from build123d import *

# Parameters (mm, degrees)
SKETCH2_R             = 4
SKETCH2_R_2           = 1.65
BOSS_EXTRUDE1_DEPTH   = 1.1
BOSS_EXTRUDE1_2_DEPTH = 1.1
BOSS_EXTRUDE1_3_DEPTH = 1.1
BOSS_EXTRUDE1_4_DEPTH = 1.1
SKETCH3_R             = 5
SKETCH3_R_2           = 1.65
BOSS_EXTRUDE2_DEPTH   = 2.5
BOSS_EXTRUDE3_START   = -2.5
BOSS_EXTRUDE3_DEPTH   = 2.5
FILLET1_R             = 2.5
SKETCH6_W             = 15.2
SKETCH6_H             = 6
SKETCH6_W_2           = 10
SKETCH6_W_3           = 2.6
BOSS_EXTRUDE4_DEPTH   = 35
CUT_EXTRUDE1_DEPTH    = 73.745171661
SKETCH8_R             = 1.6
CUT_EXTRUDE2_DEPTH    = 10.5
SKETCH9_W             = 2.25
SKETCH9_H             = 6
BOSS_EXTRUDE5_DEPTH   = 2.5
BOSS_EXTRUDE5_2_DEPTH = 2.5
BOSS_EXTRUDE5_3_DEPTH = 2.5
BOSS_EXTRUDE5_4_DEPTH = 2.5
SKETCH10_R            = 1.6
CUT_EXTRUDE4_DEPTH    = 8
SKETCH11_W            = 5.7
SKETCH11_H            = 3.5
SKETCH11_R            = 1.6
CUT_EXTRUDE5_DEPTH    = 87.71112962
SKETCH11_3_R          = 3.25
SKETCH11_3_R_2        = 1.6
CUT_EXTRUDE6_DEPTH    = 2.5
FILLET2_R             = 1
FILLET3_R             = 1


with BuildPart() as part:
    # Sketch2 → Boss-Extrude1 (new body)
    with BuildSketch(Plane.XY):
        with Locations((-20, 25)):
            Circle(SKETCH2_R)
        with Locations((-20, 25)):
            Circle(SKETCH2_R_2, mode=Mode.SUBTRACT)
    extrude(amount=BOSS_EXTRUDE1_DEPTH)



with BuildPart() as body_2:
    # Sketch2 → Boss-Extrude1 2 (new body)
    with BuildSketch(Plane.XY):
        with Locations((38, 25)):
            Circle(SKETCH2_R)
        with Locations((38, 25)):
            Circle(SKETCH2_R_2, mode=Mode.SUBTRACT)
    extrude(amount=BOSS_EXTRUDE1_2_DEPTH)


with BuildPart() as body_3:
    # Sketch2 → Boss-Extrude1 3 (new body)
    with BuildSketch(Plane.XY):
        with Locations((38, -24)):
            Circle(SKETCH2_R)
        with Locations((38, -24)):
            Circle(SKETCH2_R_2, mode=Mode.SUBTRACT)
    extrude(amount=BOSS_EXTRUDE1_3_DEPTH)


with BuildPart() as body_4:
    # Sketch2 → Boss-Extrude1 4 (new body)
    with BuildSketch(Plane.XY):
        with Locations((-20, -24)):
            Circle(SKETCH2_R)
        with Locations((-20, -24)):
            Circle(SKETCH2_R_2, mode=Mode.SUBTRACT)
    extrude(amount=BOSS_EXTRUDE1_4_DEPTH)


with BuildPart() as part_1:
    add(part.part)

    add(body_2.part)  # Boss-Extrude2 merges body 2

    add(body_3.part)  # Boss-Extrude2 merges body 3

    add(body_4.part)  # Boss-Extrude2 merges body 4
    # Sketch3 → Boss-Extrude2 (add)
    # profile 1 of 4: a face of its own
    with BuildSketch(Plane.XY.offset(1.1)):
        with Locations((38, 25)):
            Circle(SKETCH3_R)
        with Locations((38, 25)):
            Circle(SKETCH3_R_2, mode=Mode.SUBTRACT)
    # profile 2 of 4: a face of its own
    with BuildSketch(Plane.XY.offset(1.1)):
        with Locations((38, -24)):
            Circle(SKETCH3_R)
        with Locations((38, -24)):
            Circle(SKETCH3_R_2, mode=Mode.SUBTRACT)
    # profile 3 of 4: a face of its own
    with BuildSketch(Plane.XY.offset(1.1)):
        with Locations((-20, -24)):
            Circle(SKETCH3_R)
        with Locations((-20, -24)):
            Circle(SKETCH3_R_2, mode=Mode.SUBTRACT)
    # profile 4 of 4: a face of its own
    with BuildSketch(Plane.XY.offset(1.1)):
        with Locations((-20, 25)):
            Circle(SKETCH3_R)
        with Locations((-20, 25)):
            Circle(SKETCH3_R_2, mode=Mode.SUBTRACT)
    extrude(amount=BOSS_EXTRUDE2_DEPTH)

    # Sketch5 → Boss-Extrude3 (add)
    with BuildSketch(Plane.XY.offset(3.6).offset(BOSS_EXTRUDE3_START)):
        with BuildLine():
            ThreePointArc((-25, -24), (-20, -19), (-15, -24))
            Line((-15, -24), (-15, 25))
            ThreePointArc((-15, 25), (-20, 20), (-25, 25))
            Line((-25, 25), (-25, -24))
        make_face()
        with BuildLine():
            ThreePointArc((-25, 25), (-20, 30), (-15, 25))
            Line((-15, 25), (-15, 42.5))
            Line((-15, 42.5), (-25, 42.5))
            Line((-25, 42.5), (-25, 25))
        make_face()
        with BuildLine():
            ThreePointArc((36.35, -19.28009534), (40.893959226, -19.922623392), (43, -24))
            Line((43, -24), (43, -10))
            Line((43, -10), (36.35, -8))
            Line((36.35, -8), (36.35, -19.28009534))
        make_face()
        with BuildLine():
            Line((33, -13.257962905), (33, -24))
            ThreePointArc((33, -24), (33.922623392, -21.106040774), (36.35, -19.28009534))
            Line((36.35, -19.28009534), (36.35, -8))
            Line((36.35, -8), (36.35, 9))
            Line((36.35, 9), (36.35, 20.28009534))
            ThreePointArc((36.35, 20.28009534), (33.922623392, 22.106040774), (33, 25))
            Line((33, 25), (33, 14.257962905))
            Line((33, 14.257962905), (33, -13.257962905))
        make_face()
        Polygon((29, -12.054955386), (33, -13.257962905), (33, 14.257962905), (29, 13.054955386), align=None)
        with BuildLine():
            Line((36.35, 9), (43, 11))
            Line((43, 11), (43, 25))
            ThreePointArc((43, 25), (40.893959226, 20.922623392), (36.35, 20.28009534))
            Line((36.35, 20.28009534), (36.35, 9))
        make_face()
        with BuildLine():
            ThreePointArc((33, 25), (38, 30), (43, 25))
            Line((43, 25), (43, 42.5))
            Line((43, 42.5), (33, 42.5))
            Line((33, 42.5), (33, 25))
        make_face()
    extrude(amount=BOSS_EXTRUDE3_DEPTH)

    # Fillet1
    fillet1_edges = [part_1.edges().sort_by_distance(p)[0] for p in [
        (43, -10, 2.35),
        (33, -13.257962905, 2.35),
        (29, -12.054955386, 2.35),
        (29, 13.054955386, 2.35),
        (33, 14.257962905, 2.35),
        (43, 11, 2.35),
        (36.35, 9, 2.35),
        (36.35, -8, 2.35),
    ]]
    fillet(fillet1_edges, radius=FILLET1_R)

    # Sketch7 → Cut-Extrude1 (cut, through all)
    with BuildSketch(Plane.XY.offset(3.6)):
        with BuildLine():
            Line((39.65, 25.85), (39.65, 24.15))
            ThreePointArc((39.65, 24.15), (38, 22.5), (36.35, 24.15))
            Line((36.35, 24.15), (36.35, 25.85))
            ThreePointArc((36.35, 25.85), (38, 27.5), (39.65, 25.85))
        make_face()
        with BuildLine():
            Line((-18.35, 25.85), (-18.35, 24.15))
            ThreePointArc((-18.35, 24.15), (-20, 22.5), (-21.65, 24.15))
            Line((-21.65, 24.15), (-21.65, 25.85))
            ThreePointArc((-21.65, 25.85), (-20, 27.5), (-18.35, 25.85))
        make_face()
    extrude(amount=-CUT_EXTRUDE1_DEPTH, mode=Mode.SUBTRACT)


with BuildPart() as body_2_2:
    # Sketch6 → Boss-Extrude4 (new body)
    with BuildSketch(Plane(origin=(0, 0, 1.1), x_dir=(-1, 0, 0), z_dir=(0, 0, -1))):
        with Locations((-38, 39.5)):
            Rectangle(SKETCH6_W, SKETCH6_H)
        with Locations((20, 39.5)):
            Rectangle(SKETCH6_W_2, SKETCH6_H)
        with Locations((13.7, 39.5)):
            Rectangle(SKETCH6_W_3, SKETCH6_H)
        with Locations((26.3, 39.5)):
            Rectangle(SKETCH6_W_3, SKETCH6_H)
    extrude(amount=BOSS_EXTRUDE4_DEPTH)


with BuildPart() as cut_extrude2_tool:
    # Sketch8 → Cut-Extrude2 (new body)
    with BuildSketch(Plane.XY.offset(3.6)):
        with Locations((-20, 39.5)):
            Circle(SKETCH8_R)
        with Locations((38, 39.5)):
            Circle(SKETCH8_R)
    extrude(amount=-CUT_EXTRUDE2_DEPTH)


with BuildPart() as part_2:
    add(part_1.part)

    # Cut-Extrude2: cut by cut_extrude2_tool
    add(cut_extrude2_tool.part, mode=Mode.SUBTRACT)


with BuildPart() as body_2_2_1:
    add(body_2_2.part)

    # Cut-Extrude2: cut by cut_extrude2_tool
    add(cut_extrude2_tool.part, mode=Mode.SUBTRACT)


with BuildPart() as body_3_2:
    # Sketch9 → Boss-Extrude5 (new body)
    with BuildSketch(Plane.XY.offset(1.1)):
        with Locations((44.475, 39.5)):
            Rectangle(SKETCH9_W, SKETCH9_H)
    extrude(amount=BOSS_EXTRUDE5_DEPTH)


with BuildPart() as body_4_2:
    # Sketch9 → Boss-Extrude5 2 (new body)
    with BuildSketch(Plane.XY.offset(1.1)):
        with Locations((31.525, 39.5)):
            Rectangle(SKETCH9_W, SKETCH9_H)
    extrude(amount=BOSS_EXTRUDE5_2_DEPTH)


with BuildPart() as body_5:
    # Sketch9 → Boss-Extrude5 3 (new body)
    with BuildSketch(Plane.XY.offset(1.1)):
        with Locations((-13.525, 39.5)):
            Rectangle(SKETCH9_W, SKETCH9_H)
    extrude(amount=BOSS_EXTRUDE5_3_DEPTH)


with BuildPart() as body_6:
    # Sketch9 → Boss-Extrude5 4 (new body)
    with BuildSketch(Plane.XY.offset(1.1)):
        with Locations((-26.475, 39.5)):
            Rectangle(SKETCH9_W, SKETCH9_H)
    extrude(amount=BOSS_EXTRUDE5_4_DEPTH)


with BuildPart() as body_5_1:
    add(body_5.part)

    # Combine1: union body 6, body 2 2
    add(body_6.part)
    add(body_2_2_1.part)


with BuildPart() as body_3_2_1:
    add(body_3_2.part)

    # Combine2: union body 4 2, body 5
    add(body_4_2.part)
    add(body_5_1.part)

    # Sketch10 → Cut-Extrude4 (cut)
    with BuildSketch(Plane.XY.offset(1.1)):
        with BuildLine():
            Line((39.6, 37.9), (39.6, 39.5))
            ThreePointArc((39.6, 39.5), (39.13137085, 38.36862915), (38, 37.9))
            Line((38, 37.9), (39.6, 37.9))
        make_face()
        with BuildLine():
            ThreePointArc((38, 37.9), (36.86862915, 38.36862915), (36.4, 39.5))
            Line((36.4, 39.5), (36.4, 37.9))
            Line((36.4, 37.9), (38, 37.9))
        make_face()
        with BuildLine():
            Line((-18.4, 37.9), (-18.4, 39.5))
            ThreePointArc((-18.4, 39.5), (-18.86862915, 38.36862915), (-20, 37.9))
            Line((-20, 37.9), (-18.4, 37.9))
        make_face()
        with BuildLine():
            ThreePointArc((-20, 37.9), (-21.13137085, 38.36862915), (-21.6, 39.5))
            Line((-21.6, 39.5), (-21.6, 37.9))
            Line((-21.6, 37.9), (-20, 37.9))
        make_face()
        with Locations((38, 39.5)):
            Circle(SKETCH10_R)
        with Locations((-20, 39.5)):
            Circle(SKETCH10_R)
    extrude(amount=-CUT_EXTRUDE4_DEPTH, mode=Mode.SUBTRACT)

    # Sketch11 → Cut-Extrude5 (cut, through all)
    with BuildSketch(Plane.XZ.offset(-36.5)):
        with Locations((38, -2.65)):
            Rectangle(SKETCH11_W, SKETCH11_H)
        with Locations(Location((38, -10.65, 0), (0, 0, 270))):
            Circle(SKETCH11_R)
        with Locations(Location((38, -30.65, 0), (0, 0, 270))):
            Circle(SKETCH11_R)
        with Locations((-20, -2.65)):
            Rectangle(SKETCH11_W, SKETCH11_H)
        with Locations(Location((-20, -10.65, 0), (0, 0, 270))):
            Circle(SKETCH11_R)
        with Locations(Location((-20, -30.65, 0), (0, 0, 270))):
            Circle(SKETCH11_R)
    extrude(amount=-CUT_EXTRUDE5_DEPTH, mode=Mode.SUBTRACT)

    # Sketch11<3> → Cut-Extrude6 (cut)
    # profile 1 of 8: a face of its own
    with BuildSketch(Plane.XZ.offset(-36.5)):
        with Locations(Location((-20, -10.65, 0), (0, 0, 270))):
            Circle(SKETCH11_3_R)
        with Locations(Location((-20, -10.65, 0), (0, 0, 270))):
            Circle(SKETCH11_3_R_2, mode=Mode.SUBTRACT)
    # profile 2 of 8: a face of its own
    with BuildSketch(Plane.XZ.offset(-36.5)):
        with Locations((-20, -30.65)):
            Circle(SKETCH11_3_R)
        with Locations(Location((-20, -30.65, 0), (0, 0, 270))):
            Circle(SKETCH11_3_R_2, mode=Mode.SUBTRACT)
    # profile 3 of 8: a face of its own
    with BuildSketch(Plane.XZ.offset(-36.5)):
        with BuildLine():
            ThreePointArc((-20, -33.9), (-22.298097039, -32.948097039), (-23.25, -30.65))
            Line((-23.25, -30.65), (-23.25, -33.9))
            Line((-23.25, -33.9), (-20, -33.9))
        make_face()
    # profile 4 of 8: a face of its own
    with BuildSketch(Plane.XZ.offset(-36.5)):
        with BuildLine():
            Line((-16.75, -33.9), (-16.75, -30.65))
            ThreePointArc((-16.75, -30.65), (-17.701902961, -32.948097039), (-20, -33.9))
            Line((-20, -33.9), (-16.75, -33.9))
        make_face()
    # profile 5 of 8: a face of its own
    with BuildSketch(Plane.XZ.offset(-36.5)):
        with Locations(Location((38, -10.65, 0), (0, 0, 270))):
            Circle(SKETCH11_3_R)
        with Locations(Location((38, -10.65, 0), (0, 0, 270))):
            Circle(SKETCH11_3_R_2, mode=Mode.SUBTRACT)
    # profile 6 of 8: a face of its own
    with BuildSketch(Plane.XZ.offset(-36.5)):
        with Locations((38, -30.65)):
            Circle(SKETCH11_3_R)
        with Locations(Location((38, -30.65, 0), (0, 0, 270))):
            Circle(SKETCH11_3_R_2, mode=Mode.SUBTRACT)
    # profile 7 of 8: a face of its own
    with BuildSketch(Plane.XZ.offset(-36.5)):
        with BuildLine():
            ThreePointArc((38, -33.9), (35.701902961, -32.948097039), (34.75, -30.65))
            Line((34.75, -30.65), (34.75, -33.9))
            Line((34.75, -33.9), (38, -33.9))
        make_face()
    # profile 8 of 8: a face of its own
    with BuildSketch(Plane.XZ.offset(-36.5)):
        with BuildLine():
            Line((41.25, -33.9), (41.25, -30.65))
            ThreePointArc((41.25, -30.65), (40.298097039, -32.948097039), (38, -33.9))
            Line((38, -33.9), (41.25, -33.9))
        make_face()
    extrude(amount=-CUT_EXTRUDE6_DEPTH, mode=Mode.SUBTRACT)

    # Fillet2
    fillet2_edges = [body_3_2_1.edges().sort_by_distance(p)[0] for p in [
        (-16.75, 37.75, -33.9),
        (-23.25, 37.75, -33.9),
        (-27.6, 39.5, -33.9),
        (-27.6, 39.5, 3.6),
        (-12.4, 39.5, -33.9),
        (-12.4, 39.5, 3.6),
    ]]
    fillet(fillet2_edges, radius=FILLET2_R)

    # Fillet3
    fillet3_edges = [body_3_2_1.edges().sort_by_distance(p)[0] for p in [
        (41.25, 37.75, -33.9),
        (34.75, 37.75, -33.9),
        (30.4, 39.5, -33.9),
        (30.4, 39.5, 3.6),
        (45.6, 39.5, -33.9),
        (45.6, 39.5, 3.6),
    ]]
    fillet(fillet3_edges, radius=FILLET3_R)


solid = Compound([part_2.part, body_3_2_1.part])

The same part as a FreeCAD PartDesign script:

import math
import FreeCAD as App
import Part
import Sketcher
from FreeCAD import Vector


def edges_at(feature, points):
    """Names of the edges that pass closest to the given points."""
    edges = feature.Shape.Edges
    near = lambda p: min(range(len(edges)), key=lambda i: edges[i].distToShape(Part.Vertex(*p))[0])
    return sorted({f"Edge{near(p) + 1}" for p in points})


def add_polygon(sketch, points):
    """Adds a closed chain of lines whose ends are joined by coincident constraints."""
    first, n = sketch.GeometryCount, len(points)
    for a, b in zip(points, points[1:] + points[:1]):
        sketch.addGeometry(Part.LineSegment(App.Vector(*a, 0), App.Vector(*b, 0)), False)
    for i in range(n):
        sketch.addConstraint(Sketcher.Constraint("Coincident", first + i, 2, first + (i + 1) % n, 1))

doc = App.newDocument("Part")
params = doc.addObject("Spreadsheet::Sheet", "Params")
for row, (alias, value) in enumerate([
    ("sketch1_diameter", "8 mm"),
    ("sketch1_diameter2", "3.3 mm"),
    ("pad1_length", "1.1 mm"),
    ("sketch2_diameter", "8 mm"),
    ("sketch2_diameter2", "3.3 mm"),
    ("pad2_length", "1.1 mm"),
    ("sketch3_diameter", "8 mm"),
    ("sketch3_diameter2", "3.3 mm"),
    ("pad3_length", "1.1 mm"),
    ("sketch4_diameter", "8 mm"),
    ("sketch4_diameter2", "3.3 mm"),
    ("pad4_length", "1.1 mm"),
    ("sketch5_diameter", "10 mm"),
    ("sketch5_diameter2", "3.3 mm"),
    ("pad5_length", "2.5 mm"),
    ("sketch6_radius", "5 mm"),
    ("sketch6_height", "49 mm"),
    ("sketch6_height2", "14 mm"),
    ("sketch6_height3", "17 mm"),
    ("sketch6_height4", "17.5 mm"),
    ("pad6_length", "2.5 mm"),
    ("fillet_radius", "2.5 mm"),
    ("sketch7_radius", "1.65 mm"),
    ("sketch7_height", "1.7 mm"),
    ("sketch8_height", "6 mm"),
    ("sketch8_width", "15.2 mm"),
    ("pad7_length", "35 mm"),
    ("sketch9_diameter", "3.2 mm"),
    ("pad8_length", "10.5 mm"),
    ("sketch10_height", "6 mm"),
    ("sketch10_width", "2.25 mm"),
    ("pad9_length", "2.5 mm"),
    ("sketch11_height", "6 mm"),
    ("sketch11_width", "2.25 mm"),
    ("pad10_length", "2.5 mm"),
    ("sketch12_height", "6 mm"),
    ("sketch12_width", "2.25 mm"),
    ("pad11_length", "2.5 mm"),
    ("sketch13_height", "6 mm"),
    ("sketch13_width", "2.25 mm"),
    ("pad12_length", "2.5 mm"),
    ("sketch14_radius", "1.6 mm"),
    ("sketch14_height", "1.6 mm"),
    ("pocket2_length", "8 mm"),
    ("sketch15_diameter", "3.2 mm"),
    ("sketch15_width", "5.7 mm"),
    ("sketch15_height", "3.5 mm"),
    ("sketch16_diameter", "6.5 mm"),
    ("sketch16_diameter2", "3.2 mm"),
    ("sketch16_height", "3.25 mm"),
    ("pocket4_length", "2.5 mm"),
    ("fillet2_radius", "1 mm"),
    ("fillet3_radius", "1 mm"),
], start=1):
    params.set(f"A{row}", alias)
    params.set(f"B{row}", "=" + value)
    params.setAlias(f"B{row}", alias)

body = doc.addObject("PartDesign::Body", "Body")

sketch1 = body.newObject("Sketcher::SketchObject", "Sketch")
sketch1.AttachmentSupport = (doc.getObject("XY_Plane"), [""])
sketch1.MapMode = "FlatFace"
sketch1.addGeometry([
    Part.Circle(Vector(-20, 25, 0), Vector(0, 0, 1), 4),
    Part.Circle(Vector(-20, 25, 0), Vector(0, 0, 1), 1.65),
], False)
sketch1.addConstraint([
    Sketcher.Constraint("Coincident", 1, 3, 0, 3),
    Sketcher.Constraint("Diameter", 0, 8.0),
    Sketcher.Constraint("Diameter", 1, 3.3),
    Sketcher.Constraint("DistanceX", 0, 3, -1, 1, 20.0),
    Sketcher.Constraint("DistanceY", -1, 1, 0, 3, 25.0),
])
sketch1.setExpression("Constraints[1]", "Params.sketch1_diameter")
sketch1.setExpression("Constraints[2]", "Params.sketch1_diameter2")
pad1 = body.newObject("PartDesign::Pad", "Pad")
pad1.Profile = sketch1
pad1.setExpression("Length", "Params.pad1_length")
body2 = doc.addObject("PartDesign::Body", "Body001")

sketch2 = body2.newObject("Sketcher::SketchObject", "Sketch001")
sketch2.AttachmentSupport = (doc.getObject("XY_Plane001"), [""])
sketch2.MapMode = "FlatFace"
sketch2.addGeometry([
    Part.Circle(Vector(38, 25, 0), Vector(0, 0, 1), 4),
    Part.Circle(Vector(38, 25, 0), Vector(0, 0, 1), 1.65),
], False)
sketch2.addConstraint([
    Sketcher.Constraint("Coincident", 1, 3, 0, 3),
    Sketcher.Constraint("Diameter", 0, 8.0),
    Sketcher.Constraint("Diameter", 1, 3.3),
    Sketcher.Constraint("DistanceX", -1, 1, 0, 3, 38.0),
    Sketcher.Constraint("DistanceY", -1, 1, 0, 3, 25.0),
])
sketch2.setExpression("Constraints[1]", "Params.sketch2_diameter")
sketch2.setExpression("Constraints[2]", "Params.sketch2_diameter2")
pad2 = body2.newObject("PartDesign::Pad", "Pad001")
pad2.Profile = sketch2
pad2.setExpression("Length", "Params.pad2_length")
body3 = doc.addObject("PartDesign::Body", "Body002")

sketch3 = body3.newObject("Sketcher::SketchObject", "Sketch002")
sketch3.AttachmentSupport = (doc.getObject("XY_Plane002"), [""])
sketch3.MapMode = "FlatFace"
sketch3.addGeometry([
    Part.Circle(Vector(38, -24, 0), Vector(0, 0, 1), 4),
    Part.Circle(Vector(38, -24, 0), Vector(0, 0, 1), 1.65),
], False)
sketch3.addConstraint([
    Sketcher.Constraint("Coincident", 1, 3, 0, 3),
    Sketcher.Constraint("Diameter", 0, 8.0),
    Sketcher.Constraint("Diameter", 1, 3.3),
    Sketcher.Constraint("DistanceX", -1, 1, 0, 3, 38.0),
    Sketcher.Constraint("DistanceY", 0, 3, -1, 1, 24.0),
])
sketch3.setExpression("Constraints[1]", "Params.sketch3_diameter")
sketch3.setExpression("Constraints[2]", "Params.sketch3_diameter2")
pad3 = body3.newObject("PartDesign::Pad", "Pad002")
pad3.Profile = sketch3
pad3.setExpression("Length", "Params.pad3_length")
body4 = doc.addObject("PartDesign::Body", "Body003")

sketch4 = body4.newObject("Sketcher::SketchObject", "Sketch003")
sketch4.AttachmentSupport = (doc.getObject("XY_Plane003"), [""])
sketch4.MapMode = "FlatFace"
sketch4.addGeometry([
    Part.Circle(Vector(-20, -24, 0), Vector(0, 0, 1), 4),
    Part.Circle(Vector(-20, -24, 0), Vector(0, 0, 1), 1.65),
], False)
sketch4.addConstraint([
    Sketcher.Constraint("Coincident", 1, 3, 0, 3),
    Sketcher.Constraint("Diameter", 0, 8.0),
    Sketcher.Constraint("Diameter", 1, 3.3),
    Sketcher.Constraint("DistanceX", 0, 3, -1, 1, 20.0),
    Sketcher.Constraint("DistanceY", 0, 3, -1, 1, 24.0),
])
sketch4.setExpression("Constraints[1]", "Params.sketch4_diameter")
sketch4.setExpression("Constraints[2]", "Params.sketch4_diameter2")
pad4 = body4.newObject("PartDesign::Pad", "Pad003")
pad4.Profile = sketch4
pad4.setExpression("Length", "Params.pad4_length")
body.AllowCompound = True
doc.recompute()

boolean = body.newObject("PartDesign::Boolean", "Boolean")
boolean.Type = "Fuse"
boolean.addObjects([body2])
doc.recompute()

boolean2 = body.newObject("PartDesign::Boolean", "Boolean001")
boolean2.Type = "Fuse"
boolean2.addObjects([body3])
doc.recompute()

boolean3 = body.newObject("PartDesign::Boolean", "Boolean002")
boolean3.Type = "Fuse"
boolean3.addObjects([body4])

sketch5 = body.newObject("Sketcher::SketchObject", "Sketch004")
sketch5.AttachmentSupport = (doc.getObject("XY_Plane"), [""])
sketch5.MapMode = "FlatFace"
sketch5.AttachmentOffset = App.Placement(Vector(0, 0, 1.1), App.Rotation())
sketch5.addGeometry([
    Part.Circle(Vector(38, 25, 0), Vector(0, 0, 1), 5),
    Part.Circle(Vector(38, 25, 0), Vector(0, 0, 1), 1.65),
    Part.Circle(Vector(38, -24, 0), Vector(0, 0, 1), 5),
    Part.Circle(Vector(38, -24, 0), Vector(0, 0, 1), 1.65),
    Part.Circle(Vector(-20, -24, 0), Vector(0, 0, 1), 5),
    Part.Circle(Vector(-20, -24, 0), Vector(0, 0, 1), 1.65),
    Part.Circle(Vector(-20, 25, 0), Vector(0, 0, 1), 5),
    Part.Circle(Vector(-20, 25, 0), Vector(0, 0, 1), 1.65),
], False)
sketch5.addConstraint([
    Sketcher.Constraint("Coincident", 1, 3, 0, 3),
    Sketcher.Constraint("Coincident", 3, 3, 2, 3),
    Sketcher.Constraint("Coincident", 5, 3, 4, 3),
    Sketcher.Constraint("Coincident", 7, 3, 6, 3),
    Sketcher.Constraint("Equal", 0, 2),
    Sketcher.Constraint("Equal", 1, 3),
    Sketcher.Constraint("Equal", 2, 4),
    Sketcher.Constraint("Equal", 3, 5),
    Sketcher.Constraint("Equal", 4, 6),
    Sketcher.Constraint("Equal", 5, 7),
    Sketcher.Constraint("Horizontal", 3, 3, 4, 3),
    Sketcher.Constraint("Horizontal", 1, 3, 6, 3),
    Sketcher.Constraint("Vertical", 1, 3, 2, 3),
    Sketcher.Constraint("Vertical", 5, 3, 6, 3),
    Sketcher.Constraint("Diameter", 0, 10.0),
    Sketcher.Constraint("Diameter", 1, 3.3),
    Sketcher.Constraint("DistanceX", -1, 1, 0, 3, 38.0),
    Sketcher.Constraint("DistanceY", -1, 1, 0, 3, 25.0),
    Sketcher.Constraint("DistanceY", 2, 3, -1, 1, 24.0),
    Sketcher.Constraint("DistanceX", 4, 3, -1, 1, 20.0),
])
sketch5.setExpression("Constraints[14]", "Params.sketch5_diameter")
sketch5.setExpression("Constraints[15]", "Params.sketch5_diameter2")
pad5 = body.newObject("PartDesign::Pad", "Pad004")
pad5.Profile = sketch5
pad5.setExpression("Length", "Params.pad5_length")

sketch6 = body.newObject("Sketcher::SketchObject", "Sketch005")
sketch6.AttachmentSupport = (doc.getObject("XY_Plane"), [""])
sketch6.MapMode = "FlatFace"
sketch6.AttachmentOffset = App.Placement(Vector(0, 0, 1.1), App.Rotation())
sketch6.addGeometry([
    Part.ArcOfCircle(Part.Circle(Vector(-20, -24, 0), Vector(0, 0, 1), 5), math.radians(0), math.radians(180)),
    Part.LineSegment(Vector(-15, -24, 0), Vector(-15, 25, 0)),
    Part.ArcOfCircle(Part.Circle(Vector(-20, 25, 0), Vector(0, 0, 1), 5), math.radians(180), math.radians(360)),
    Part.LineSegment(Vector(-25, 25, 0), Vector(-25, -24, 0)),
    Part.ArcOfCircle(Part.Circle(Vector(-20, 25, 0), Vector(0, 0, 1), 5), math.radians(0), math.radians(180)),
    Part.LineSegment(Vector(-15, 25, 0), Vector(-15, 42.5, 0)),
    Part.LineSegment(Vector(-15, 42.5, 0), Vector(-25, 42.5, 0)),
    Part.LineSegment(Vector(-25, 42.5, 0), Vector(-25, 25, 0)),
    Part.ArcOfCircle(Part.Circle(Vector(38, -24, 0), Vector(0, 0, 1), 5), math.radians(0), math.radians(109.268776)),
    Part.LineSegment(Vector(43, -24, 0), Vector(43, -10, 0)),
    Part.LineSegment(Vector(43, -10, 0), Vector(36.35, -8, 0)),
    Part.LineSegment(Vector(36.35, -8, 0), Vector(36.35, 9, 0)),
    Part.LineSegment(Vector(36.35, 9, 0), Vector(43, 11, 0)),
    Part.LineSegment(Vector(43, 11, 0), Vector(43, 25, 0)),
    Part.ArcOfCircle(Part.Circle(Vector(38, 25, 0), Vector(0, 0, 1), 5), math.radians(-109.268776), math.radians(0)),
    Part.ArcOfCircle(Part.Circle(Vector(38, 25, 0), Vector(0, 0, 1), 5), math.radians(180), math.radians(250.731225)),
    Part.LineSegment(Vector(33, 25, 0), Vector(33, 14.257963, 0)),
    Part.LineSegment(Vector(33, 14.257963, 0), Vector(29, 13.054955, 0)),
    Part.LineSegment(Vector(29, 13.054955, 0), Vector(29, -12.054955, 0)),
    Part.LineSegment(Vector(29, -12.054955, 0), Vector(33, -13.257963, 0)),
    Part.LineSegment(Vector(33, -13.257963, 0), Vector(33, -24, 0)),
    Part.ArcOfCircle(Part.Circle(Vector(38, -24, 0), Vector(0, 0, 1), 5), math.radians(109.268775), math.radians(180)),
    Part.ArcOfCircle(Part.Circle(Vector(38, 25, 0), Vector(0, 0, 1), 5), math.radians(0), math.radians(180)),
    Part.LineSegment(Vector(43, 25, 0), Vector(43, 42.5, 0)),
    Part.LineSegment(Vector(43, 42.5, 0), Vector(33, 42.5, 0)),
    Part.LineSegment(Vector(33, 42.5, 0), Vector(33, 25, 0)),
], False)
sketch6.addConstraint([
    Sketcher.Constraint("Tangent", 0, 1, 1, 1),
    Sketcher.Constraint("Tangent", 1, 2, 2, 2),
    Sketcher.Constraint("Tangent", 2, 1, 3, 1),
    Sketcher.Constraint("Tangent", 3, 2, 0, 2),
    Sketcher.Constraint("Tangent", 4, 1, 5, 1),
    Sketcher.Constraint("Coincident", 5, 2, 6, 1),
    Sketcher.Constraint("Coincident", 6, 2, 7, 1),
    Sketcher.Constraint("Tangent", 7, 2, 4, 2),
    Sketcher.Constraint("Tangent", 8, 1, 9, 1),
    Sketcher.Constraint("Coincident", 9, 2, 10, 1),
    Sketcher.Constraint("Coincident", 10, 2, 11, 1),
    Sketcher.Constraint("Coincident", 11, 2, 12, 1),
    Sketcher.Constraint("Coincident", 12, 2, 13, 1),
    Sketcher.Constraint("Tangent", 13, 2, 14, 2),
    Sketcher.Constraint("Tangent", 14, 1, 15, 2),
    Sketcher.Constraint("Tangent", 15, 1, 16, 1),
    Sketcher.Constraint("Coincident", 16, 2, 17, 1),
    Sketcher.Constraint("Coincident", 17, 2, 18, 1),
    Sketcher.Constraint("Coincident", 18, 2, 19, 1),
    Sketcher.Constraint("Coincident", 19, 2, 20, 1),
    Sketcher.Constraint("Tangent", 20, 2, 21, 2),
    Sketcher.Constraint("Tangent", 21, 1, 8, 2),
    Sketcher.Constraint("Tangent", 22, 1, 23, 1),
    Sketcher.Constraint("Coincident", 23, 2, 24, 1),
    Sketcher.Constraint("Coincident", 24, 2, 25, 1),
    Sketcher.Constraint("Tangent", 25, 2, 22, 2),
    Sketcher.Constraint("Vertical", 1),
    Sketcher.Constraint("Vertical", 3),
    Sketcher.Constraint("Vertical", 5),
    Sketcher.Constraint("Horizontal", 6),
    Sketcher.Constraint("Vertical", 7),
    Sketcher.Constraint("Vertical", 9),
    Sketcher.Constraint("Vertical", 11),
    Sketcher.Constraint("Vertical", 13),
    Sketcher.Constraint("Vertical", 16),
    Sketcher.Constraint("Vertical", 18),
    Sketcher.Constraint("Vertical", 20),
    Sketcher.Constraint("Vertical", 23),
    Sketcher.Constraint("Horizontal", 24),
    Sketcher.Constraint("Vertical", 25),
    Sketcher.Constraint("Coincident", 4, 3, 2, 3),
    Sketcher.Constraint("Coincident", 22, 3, 14, 3),
    Sketcher.Constraint("Coincident", 25, 2, 15, 1),
    Sketcher.Constraint("Equal", 2, 4),
    Sketcher.Constraint("Equal", 4, 8),
    Sketcher.Constraint("Equal", 8, 14),
    Sketcher.Constraint("Equal", 15, 21),
    Sketcher.Constraint("Parallel", 12, 17),
    Sketcher.Constraint("Parallel", 10, 19),
    Sketcher.Constraint("Horizontal", 0, 3, 8, 3),
    Sketcher.Constraint("Horizontal", 4, 3, 14, 3),
    Sketcher.Constraint("Horizontal", 6, 2, 23, 2),
    Sketcher.Constraint("Vertical", 8, 3, 14, 3),
    Sketcher.Constraint("Vertical", 11, 2, 14, 1),
    Sketcher.Constraint("Vertical", 14, 1, 21, 1),
    Sketcher.Constraint("Equal", 9, 13),
    Sketcher.Constraint("Equal", 16, 20),
    Sketcher.Constraint("Equal", 10, 12),
    Sketcher.Constraint("Radius", 0, 5.0),
    Sketcher.Constraint("DistanceY", 1, 1, 1, 2, 49.0),
    Sketcher.Constraint("DistanceY", 9, 1, 9, 2, 14.0),
    Sketcher.Constraint("DistanceY", 11, 1, 11, 2, 17.0),
    Sketcher.Constraint("DistanceY", 5, 1, 5, 2, 17.5),
    Sketcher.Constraint("DistanceX", 0, 3, -1, 1, 20.0),
    Sketcher.Constraint("DistanceY", 0, 3, -1, 1, 24.0),
    Sketcher.Constraint("DistanceX", -1, 1, 8, 3, 38.0),
    Sketcher.Constraint("DistanceX", -1, 1, 17, 2, 29.0),
    Sketcher.Constraint("DistanceX", -1, 1, 10, 2, 36.35),
    Sketcher.Constraint("DistanceY", 18, 2, 18, 1, 25.109911),
])
sketch6.setExpression("Constraints[58]", "Params.sketch6_radius")
sketch6.setExpression("Constraints[59]", "Params.sketch6_height")
sketch6.setExpression("Constraints[60]", "Params.sketch6_height2")
sketch6.setExpression("Constraints[61]", "Params.sketch6_height3")
sketch6.setExpression("Constraints[62]", "Params.sketch6_height4")
pad6 = body.newObject("PartDesign::Pad", "Pad005")
pad6.Profile = sketch6
pad6.setExpression("Length", "Params.pad6_length")
doc.recompute()

fillet = body.newObject("PartDesign::Fillet", "Fillet")
fillet.Base = (pad6, edges_at(pad6, [
    (43, -10, 2.35),
    (33, -13.258, 2.35),
    (29, -12.055, 2.35),
    (29, 13.055, 2.35),
    (33, 14.258, 2.35),
    (43, 11, 2.35),
    (36.35, 9, 2.35),
    (36.35, -8, 2.35),
]))
fillet.setExpression("Radius", "Params.fillet_radius")

sketch7 = body.newObject("Sketcher::SketchObject", "Sketch006")
sketch7.AttachmentSupport = (doc.getObject("XY_Plane"), [""])
sketch7.MapMode = "FlatFace"
sketch7.AttachmentOffset = App.Placement(Vector(0, 0, 3.6), App.Rotation())
sketch7.addGeometry([
    Part.LineSegment(Vector(39.65, 24.15, 0), Vector(39.65, 25.85, 0)),
    Part.ArcOfCircle(Part.Circle(Vector(38, 25.85, 0), Vector(0, 0, 1), 1.65), math.radians(0), math.radians(180)),
    Part.LineSegment(Vector(36.35, 25.85, 0), Vector(36.35, 24.15, 0)),
    Part.ArcOfCircle(Part.Circle(Vector(38, 24.15, 0), Vector(0, 0, 1), 1.65), math.radians(180), math.radians(360)),
    Part.LineSegment(Vector(-18.35, 24.15, 0), Vector(-18.35, 25.85, 0)),
    Part.ArcOfCircle(Part.Circle(Vector(-20, 25.85, 0), Vector(0, 0, 1), 1.65), math.radians(0), math.radians(180)),
    Part.LineSegment(Vector(-21.65, 25.85, 0), Vector(-21.65, 24.15, 0)),
    Part.ArcOfCircle(Part.Circle(Vector(-20, 24.15, 0), Vector(0, 0, 1), 1.65), math.radians(180), math.radians(360)),
], False)
sketch7.addConstraint([
    Sketcher.Constraint("Tangent", 0, 2, 1, 1),
    Sketcher.Constraint("Tangent", 1, 2, 2, 1),
    Sketcher.Constraint("Tangent", 2, 2, 3, 1),
    Sketcher.Constraint("Tangent", 3, 2, 0, 1),
    Sketcher.Constraint("Tangent", 4, 2, 5, 1),
    Sketcher.Constraint("Tangent", 5, 2, 6, 1),
    Sketcher.Constraint("Tangent", 6, 2, 7, 1),
    Sketcher.Constraint("Tangent", 7, 2, 4, 1),
    Sketcher.Constraint("Vertical", 0),
    Sketcher.Constraint("Vertical", 2),
    Sketcher.Constraint("Vertical", 4),
    Sketcher.Constraint("Vertical", 6),
    Sketcher.Constraint("Equal", 3, 5),
    Sketcher.Constraint("Horizontal", 1, 3, 5, 3),
    Sketcher.Constraint("Horizontal", 3, 3, 7, 3),
    Sketcher.Constraint("Radius", 1, 1.65),
    Sketcher.Constraint("DistanceY", 0, 1, 0, 2, 1.7),
    Sketcher.Constraint("DistanceX", -1, 1, 1, 3, 38.0),
    Sketcher.Constraint("DistanceX", 5, 3, -1, 1, 20.0),
    Sketcher.Constraint("DistanceY", -1, 1, 1, 3, 25.85),
])
sketch7.setExpression("Constraints[15]", "Params.sketch7_radius")
sketch7.setExpression("Constraints[16]", "Params.sketch7_height")
pocket1 = body.newObject("PartDesign::Pocket", "Pocket")
pocket1.Profile = sketch7
pocket1.Type = "ThroughAll"
body5 = doc.addObject("PartDesign::Body", "Body004")
body5.AllowCompound = True

sketch8 = body5.newObject("Sketcher::SketchObject", "Sketch007")
sketch8.AttachmentSupport = (doc.getObject("XY_Plane004"), [""])
sketch8.MapMode = "FlatFace"
sketch8.AttachmentOffset = App.Placement(Vector(0, 0, 1.1), App.Rotation())
add_polygon(sketch8, [(45.6, 42.5), (45.6, 36.5), (30.4, 36.5), (30.4, 42.5)])
add_polygon(sketch8, [(-12.4, 42.5), (-12.4, 36.5), (-27.6, 36.5), (-27.6, 42.5)])
sketch8.addConstraint([
    Sketcher.Constraint("Vertical", 0),
    Sketcher.Constraint("Horizontal", 1),
    Sketcher.Constraint("Vertical", 2),
    Sketcher.Constraint("Horizontal", 3),
    Sketcher.Constraint("Vertical", 4),
    Sketcher.Constraint("Horizontal", 5),
    Sketcher.Constraint("Vertical", 6),
    Sketcher.Constraint("Horizontal", 7),
    Sketcher.Constraint("Horizontal", 1, 2, 4, 2),
    Sketcher.Constraint("Horizontal", 3, 2, 6, 2),
    Sketcher.Constraint("Equal", 3, 5),
    Sketcher.Constraint("DistanceY", 0, 2, 0, 1, 6.0),
    Sketcher.Constraint("DistanceX", 1, 2, 1, 1, 15.2),
    Sketcher.Constraint("DistanceX", 4, 2, 0, 2, 58.0),
    Sketcher.Constraint("DistanceX", -1, 1, 0, 2, 45.6),
    Sketcher.Constraint("DistanceY", -1, 1, 0, 2, 36.5),
])
sketch8.setExpression("Constraints[19]", "Params.sketch8_height")
sketch8.setExpression("Constraints[20]", "Params.sketch8_width")
pad7 = body5.newObject("PartDesign::Pad", "Pad006")
pad7.Profile = sketch8
pad7.setExpression("Length", "Params.pad7_length")
pad7.Reversed = True
body6 = doc.addObject("PartDesign::Body", "Body005")
body6.AllowCompound = True

sketch9 = body6.newObject("Sketcher::SketchObject", "Sketch008")
sketch9.AttachmentSupport = (doc.getObject("XY_Plane005"), [""])
sketch9.MapMode = "FlatFace"
sketch9.AttachmentOffset = App.Placement(Vector(0, 0, 3.6), App.Rotation())
sketch9.addGeometry([
    Part.Circle(Vector(-20, 39.5, 0), Vector(0, 0, 1), 1.6),
    Part.Circle(Vector(38, 39.5, 0), Vector(0, 0, 1), 1.6),
], False)
sketch9.addConstraint([
    Sketcher.Constraint("Equal", 0, 1),
    Sketcher.Constraint("Horizontal", 0, 3, 1, 3),
    Sketcher.Constraint("Diameter", 0, 3.2),
    Sketcher.Constraint("DistanceX", 0, 3, -1, 1, 20.0),
    Sketcher.Constraint("DistanceX", -1, 1, 1, 3, 38.0),
    Sketcher.Constraint("DistanceY", -1, 1, 0, 3, 39.5),
])
sketch9.setExpression("Constraints[2]", "Params.sketch9_diameter")
pad8 = body6.newObject("PartDesign::Pad", "Pad007")
pad8.Profile = sketch9
pad8.setExpression("Length", "Params.pad8_length")
pad8.Reversed = True
body.AllowCompound = True
doc.recompute()

body7 = doc.addObject("PartDesign::Body", "Body006")
body7.BaseFeature = body6
boolean4 = body.newObject("PartDesign::Boolean", "Boolean003")
boolean4.Type = "Cut"
boolean4.addObjects([body7])
doc.recompute()
body5.AllowCompound = True
doc.recompute()

boolean5 = body5.newObject("PartDesign::Boolean", "Boolean004")
boolean5.Type = "Cut"
boolean5.addObjects([body6])
body8 = doc.addObject("PartDesign::Body", "Body007")

sketch10 = body8.newObject("Sketcher::SketchObject", "Sketch009")
sketch10.AttachmentSupport = (doc.getObject("XY_Plane007"), [""])
sketch10.MapMode = "FlatFace"
sketch10.AttachmentOffset = App.Placement(Vector(0, 0, 1.1), App.Rotation())
add_polygon(sketch10, [(43.35, 42.5), (43.35, 36.5), (45.6, 36.5), (45.6, 42.5)])
sketch10.addConstraint([
    Sketcher.Constraint("Vertical", 0),
    Sketcher.Constraint("Horizontal", 1),
    Sketcher.Constraint("Vertical", 2),
    Sketcher.Constraint("Horizontal", 3),
    Sketcher.Constraint("DistanceY", 0, 2, 0, 1, 6.0),
    Sketcher.Constraint("DistanceX", 1, 1, 1, 2, 2.25),
    Sketcher.Constraint("DistanceY", -1, 1, 0, 2, 36.5),
    Sketcher.Constraint("DistanceX", -1, 1, 1, 2, 45.6),
])
sketch10.setExpression("Constraints[8]", "Params.sketch10_height")
sketch10.setExpression("Constraints[9]", "Params.sketch10_width")
pad9 = body8.newObject("PartDesign::Pad", "Pad008")
pad9.Profile = sketch10
pad9.setExpression("Length", "Params.pad9_length")
body9 = doc.addObject("PartDesign::Body", "Body008")

sketch11 = body9.newObject("Sketcher::SketchObject", "Sketch010")
sketch11.AttachmentSupport = (doc.getObject("XY_Plane008"), [""])
sketch11.MapMode = "FlatFace"
sketch11.AttachmentOffset = App.Placement(Vector(0, 0, 1.1), App.Rotation())
add_polygon(sketch11, [(30.4, 42.5), (30.4, 36.5), (32.65, 36.5), (32.65, 42.5)])
sketch11.addConstraint([
    Sketcher.Constraint("Vertical", 0),
    Sketcher.Constraint("Horizontal", 1),
    Sketcher.Constraint("Vertical", 2),
    Sketcher.Constraint("Horizontal", 3),
    Sketcher.Constraint("DistanceY", 0, 2, 0, 1, 6.0),
    Sketcher.Constraint("DistanceX", 1, 1, 1, 2, 2.25),
    Sketcher.Constraint("DistanceX", -1, 1, 0, 2, 30.4),
    Sketcher.Constraint("DistanceY", -1, 1, 0, 2, 36.5),
])
sketch11.setExpression("Constraints[8]", "Params.sketch11_height")
sketch11.setExpression("Constraints[9]", "Params.sketch11_width")
pad10 = body9.newObject("PartDesign::Pad", "Pad009")
pad10.Profile = sketch11
pad10.setExpression("Length", "Params.pad10_length")
body10 = doc.addObject("PartDesign::Body", "Body009")

sketch12 = body10.newObject("Sketcher::SketchObject", "Sketch011")
sketch12.AttachmentSupport = (doc.getObject("XY_Plane009"), [""])
sketch12.MapMode = "FlatFace"
sketch12.AttachmentOffset = App.Placement(Vector(0, 0, 1.1), App.Rotation())
add_polygon(sketch12, [(-14.65, 42.5), (-14.65, 36.5), (-12.4, 36.5), (-12.4, 42.5)])
sketch12.addConstraint([
    Sketcher.Constraint("Vertical", 0),
    Sketcher.Constraint("Horizontal", 1),
    Sketcher.Constraint("Vertical", 2),
    Sketcher.Constraint("Horizontal", 3),
    Sketcher.Constraint("DistanceY", 0, 2, 0, 1, 6.0),
    Sketcher.Constraint("DistanceX", 1, 1, 1, 2, 2.25),
    Sketcher.Constraint("DistanceY", -1, 1, 0, 2, 36.5),
    Sketcher.Constraint("DistanceX", 1, 2, -1, 1, 12.4),
])
sketch12.setExpression("Constraints[8]", "Params.sketch12_height")
sketch12.setExpression("Constraints[9]", "Params.sketch12_width")
pad11 = body10.newObject("PartDesign::Pad", "Pad010")
pad11.Profile = sketch12
pad11.setExpression("Length", "Params.pad11_length")
body11 = doc.addObject("PartDesign::Body", "Body010")

sketch13 = body11.newObject("Sketcher::SketchObject", "Sketch012")
sketch13.AttachmentSupport = (doc.getObject("XY_Plane010"), [""])
sketch13.MapMode = "FlatFace"
sketch13.AttachmentOffset = App.Placement(Vector(0, 0, 1.1), App.Rotation())
add_polygon(sketch13, [(-27.6, 42.5), (-27.6, 36.5), (-25.35, 36.5), (-25.35, 42.5)])
sketch13.addConstraint([
    Sketcher.Constraint("Vertical", 0),
    Sketcher.Constraint("Horizontal", 1),
    Sketcher.Constraint("Vertical", 2),
    Sketcher.Constraint("Horizontal", 3),
    Sketcher.Constraint("DistanceY", 0, 2, 0, 1, 6.0),
    Sketcher.Constraint("DistanceX", 1, 1, 1, 2, 2.25),
    Sketcher.Constraint("DistanceX", 0, 2, -1, 1, 27.6),
    Sketcher.Constraint("DistanceY", -1, 1, 0, 2, 36.5),
])
sketch13.setExpression("Constraints[8]", "Params.sketch13_height")
sketch13.setExpression("Constraints[9]", "Params.sketch13_width")
pad12 = body11.newObject("PartDesign::Pad", "Pad011")
pad12.Profile = sketch13
pad12.setExpression("Length", "Params.pad12_length")
body10.AllowCompound = True
doc.recompute()

boolean6 = body10.newObject("PartDesign::Boolean", "Boolean005")
boolean6.Type = "Fuse"
boolean6.addObjects([body11])
doc.recompute()

boolean7 = body10.newObject("PartDesign::Boolean", "Boolean006")
boolean7.Type = "Fuse"
boolean7.addObjects([body5])
body8.AllowCompound = True
doc.recompute()

boolean8 = body8.newObject("PartDesign::Boolean", "Boolean007")
boolean8.Type = "Fuse"
boolean8.addObjects([body9])
doc.recompute()

boolean9 = body8.newObject("PartDesign::Boolean", "Boolean008")
boolean9.Type = "Fuse"
boolean9.addObjects([body10])

sketch14 = body8.newObject("Sketcher::SketchObject", "Sketch013")
sketch14.AttachmentSupport = (doc.getObject("XY_Plane007"), [""])
sketch14.MapMode = "FlatFace"
sketch14.AttachmentOffset = App.Placement(Vector(0, 0, 1.1), App.Rotation())
sketch14.addGeometry([
    Part.LineSegment(Vector(39.6, 37.9, 0), Vector(39.6, 39.5, 0)),
    Part.ArcOfCircle(Part.Circle(Vector(38, 39.5, 0), Vector(0, 0, 1), 1.6), math.radians(0), math.radians(180)),
    Part.LineSegment(Vector(36.4, 39.5, 0), Vector(36.4, 37.9, 0)),
    Part.LineSegment(Vector(36.4, 37.9, 0), Vector(39.6, 37.9, 0)),
    Part.LineSegment(Vector(-18.4, 37.9, 0), Vector(-18.4, 39.5, 0)),
    Part.ArcOfCircle(Part.Circle(Vector(-20, 39.5, 0), Vector(0, 0, 1), 1.6), math.radians(0), math.radians(180)),
    Part.LineSegment(Vector(-21.6, 39.5, 0), Vector(-21.6, 37.9, 0)),
    Part.LineSegment(Vector(-21.6, 37.9, 0), Vector(-18.4, 37.9, 0)),
], False)
sketch14.addConstraint([
    Sketcher.Constraint("Tangent", 0, 2, 1, 1),
    Sketcher.Constraint("Tangent", 1, 2, 2, 1),
    Sketcher.Constraint("Coincident", 2, 2, 3, 1),
    Sketcher.Constraint("Coincident", 3, 2, 0, 1),
    Sketcher.Constraint("Tangent", 4, 2, 5, 1),
    Sketcher.Constraint("Tangent", 5, 2, 6, 1),
    Sketcher.Constraint("Coincident", 6, 2, 7, 1),
    Sketcher.Constraint("Coincident", 7, 2, 4, 1),
    Sketcher.Constraint("Vertical", 0),
    Sketcher.Constraint("Vertical", 2),
    Sketcher.Constraint("Horizontal", 3),
    Sketcher.Constraint("Vertical", 4),
    Sketcher.Constraint("Vertical", 6),
    Sketcher.Constraint("Horizontal", 7),
    Sketcher.Constraint("Equal", 1, 5),
    Sketcher.Constraint("Horizontal", 1, 3, 5, 3),
    Sketcher.Constraint("Horizontal", 3, 2, 6, 2),
    Sketcher.Constraint("Radius", 1, 1.6),
    Sketcher.Constraint("DistanceY", 0, 1, 0, 2, 1.6),
    Sketcher.Constraint("DistanceX", -1, 1, 1, 3, 38.0),
    Sketcher.Constraint("DistanceX", 5, 3, -1, 1, 20.0),
    Sketcher.Constraint("DistanceY", -1, 1, 1, 3, 39.5),
])
sketch14.setExpression("Constraints[17]", "Params.sketch14_radius")
sketch14.setExpression("Constraints[18]", "Params.sketch14_height")
pocket2 = body8.newObject("PartDesign::Pocket", "Pocket001")
pocket2.Profile = sketch14
pocket2.setExpression("Length", "Params.pocket2_length")

sketch15 = body8.newObject("Sketcher::SketchObject", "Sketch014")
sketch15.AttachmentSupport = (doc.getObject("XZ_Plane007"), [""])
sketch15.MapMode = "FlatFace"
sketch15.AttachmentOffset = App.Placement(Vector(0, 0, -36.5), App.Rotation())
add_polygon(sketch15, [(35.15, -0.9), (35.15, -4.4), (40.85, -4.4), (40.85, -0.9)])
sketch15.addGeometry(Part.Circle(Vector(38, -10.65, 0), Vector(0, 0, 1), 1.6), False)
sketch15.addGeometry(Part.Circle(Vector(38, -30.65, 0), Vector(0, 0, 1), 1.6), False)
add_polygon(sketch15, [(-22.85, -0.9), (-22.85, -4.4), (-17.15, -4.4), (-17.15, -0.9)])
sketch15.addGeometry(Part.Circle(Vector(-20, -10.65, 0), Vector(0, 0, 1), 1.6), False)
sketch15.addGeometry(Part.Circle(Vector(-20, -30.65, 0), Vector(0, 0, 1), 1.6), False)
sketch15.addConstraint([
    Sketcher.Constraint("Vertical", 0),
    Sketcher.Constraint("Horizontal", 1),
    Sketcher.Constraint("Vertical", 2),
    Sketcher.Constraint("Horizontal", 3),
    Sketcher.Constraint("Vertical", 6),
    Sketcher.Constraint("Horizontal", 7),
    Sketcher.Constraint("Vertical", 8),
    Sketcher.Constraint("Horizontal", 9),
    Sketcher.Constraint("Equal", 4, 5),
    Sketcher.Constraint("Equal", 5, 10),
    Sketcher.Constraint("Equal", 10, 11),
    Sketcher.Constraint("Horizontal", 4, 3, 10, 3),
    Sketcher.Constraint("Horizontal", 5, 3, 11, 3),
    Sketcher.Constraint("Horizontal", 1, 2, 6, 2),
    Sketcher.Constraint("Horizontal", 3, 2, 8, 2),
    Sketcher.Constraint("Vertical", 4, 3, 5, 3),
    Sketcher.Constraint("Vertical", 10, 3, 11, 3),
    Sketcher.Constraint("Equal", 3, 7),
    Sketcher.Constraint("Diameter", 4, 3.2),
    Sketcher.Constraint("DistanceX", 1, 1, 1, 2, 5.7),
    Sketcher.Constraint("DistanceY", 0, 2, 0, 1, 3.5),
    Sketcher.Constraint("DistanceX", -1, 1, 4, 3, 38.0),
    Sketcher.Constraint("DistanceX", 10, 3, -1, 1, 20.0),
    Sketcher.Constraint("DistanceY", 5, 3, 4, 3, 20.0),
    Sketcher.Constraint("DistanceX", 6, 2, 0, 2, 58.0),
    Sketcher.Constraint("DistanceY", 0, 2, -1, 1, 4.4),
    Sketcher.Constraint("DistanceY", 4, 3, -1, 1, 10.65),
    Sketcher.Constraint("DistanceX", -1, 1, 0, 2, 35.15),
])
sketch15.setExpression("Constraints[26]", "Params.sketch15_diameter")
sketch15.setExpression("Constraints[27]", "Params.sketch15_width")
sketch15.setExpression("Constraints[28]", "Params.sketch15_height")
pocket3 = body8.newObject("PartDesign::Pocket", "Pocket002")
pocket3.Profile = sketch15
pocket3.Type = "ThroughAll"

sketch16 = body8.newObject("Sketcher::SketchObject", "Sketch015")
sketch16.AttachmentSupport = (doc.getObject("XZ_Plane007"), [""])
sketch16.MapMode = "FlatFace"
sketch16.AttachmentOffset = App.Placement(Vector(0, 0, -36.5), App.Rotation())
sketch16.addGeometry([
    Part.Circle(Vector(-20, -10.65, 0), Vector(0, 0, 1), 3.25),
    Part.Circle(Vector(-20, -10.65, 0), Vector(0, 0, 1), 1.6),
    Part.ArcOfCircle(Part.Circle(Vector(-20, -30.65, 0), Vector(0, 0, 1), 3.25), math.radians(0), math.radians(180)),
    Part.LineSegment(Vector(-23.25, -30.65, 0), Vector(-23.25, -33.9, 0)),
    Part.LineSegment(Vector(-23.25, -33.9, 0), Vector(-16.75, -33.9, 0)),
    Part.LineSegment(Vector(-16.75, -33.9, 0), Vector(-16.75, -30.65, 0)),
    Part.Circle(Vector(-20, -30.65, 0), Vector(0, 0, 1), 1.6),
    Part.Circle(Vector(38, -10.65, 0), Vector(0, 0, 1), 3.25),
    Part.Circle(Vector(38, -10.65, 0), Vector(0, 0, 1), 1.6),
    Part.ArcOfCircle(Part.Circle(Vector(38, -30.65, 0), Vector(0, 0, 1), 3.25), math.radians(0), math.radians(180)),
    Part.LineSegment(Vector(34.75, -30.65, 0), Vector(34.75, -33.9, 0)),
    Part.LineSegment(Vector(34.75, -33.9, 0), Vector(41.25, -33.9, 0)),
    Part.LineSegment(Vector(41.25, -33.9, 0), Vector(41.25, -30.65, 0)),
    Part.Circle(Vector(38, -30.65, 0), Vector(0, 0, 1), 1.6),
], False)
sketch16.addConstraint([
    Sketcher.Constraint("Tangent", 2, 2, 3, 1),
    Sketcher.Constraint("Coincident", 3, 2, 4, 1),
    Sketcher.Constraint("Coincident", 4, 2, 5, 1),
    Sketcher.Constraint("Tangent", 5, 2, 2, 1),
    Sketcher.Constraint("Tangent", 9, 2, 10, 1),
    Sketcher.Constraint("Coincident", 10, 2, 11, 1),
    Sketcher.Constraint("Coincident", 11, 2, 12, 1),
    Sketcher.Constraint("Tangent", 12, 2, 9, 1),
    Sketcher.Constraint("Vertical", 3),
    Sketcher.Constraint("Horizontal", 4),
    Sketcher.Constraint("Vertical", 5),
    Sketcher.Constraint("Vertical", 10),
    Sketcher.Constraint("Horizontal", 11),
    Sketcher.Constraint("Vertical", 12),
    Sketcher.Constraint("Coincident", 1, 3, 0, 3),
    Sketcher.Constraint("Coincident", 6, 3, 2, 3),
    Sketcher.Constraint("Coincident", 8, 3, 7, 3),
    Sketcher.Constraint("Coincident", 13, 3, 9, 3),
    Sketcher.Constraint("Equal", 0, 2),
    Sketcher.Constraint("Equal", 1, 6),
    Sketcher.Constraint("Equal", 2, 7),
    Sketcher.Constraint("Equal", 6, 8),
    Sketcher.Constraint("Equal", 7, 9),
    Sketcher.Constraint("Equal", 8, 13),
    Sketcher.Constraint("Horizontal", 1, 3, 7, 3),
    Sketcher.Constraint("Horizontal", 6, 3, 9, 3),
    Sketcher.Constraint("Horizontal", 4, 2, 10, 2),
    Sketcher.Constraint("Vertical", 1, 3, 2, 3),
    Sketcher.Constraint("Vertical", 8, 3, 9, 3),
    Sketcher.Constraint("Diameter", 0, 6.5),
    Sketcher.Constraint("Diameter", 1, 3.2),
    Sketcher.Constraint("DistanceX", 0, 3, -1, 1, 20.0),
    Sketcher.Constraint("DistanceX", -1, 1, 7, 3, 38.0),
    Sketcher.Constraint("DistanceY", 2, 3, 0, 3, 20.0),
    Sketcher.Constraint("DistanceY", 3, 2, 3, 1, 3.25),
    Sketcher.Constraint("DistanceY", 3, 2, -1, 1, 33.9),
])
sketch16.setExpression("Constraints[29]", "Params.sketch16_diameter")
sketch16.setExpression("Constraints[30]", "Params.sketch16_diameter2")
sketch16.setExpression("Constraints[34]", "Params.sketch16_height")
pocket4 = body8.newObject("PartDesign::Pocket", "Pocket003")
pocket4.Profile = sketch16
pocket4.setExpression("Length", "Params.pocket4_length")
doc.recompute()

fillet2 = body8.newObject("PartDesign::Fillet", "Fillet001")
fillet2.Base = (pocket4, edges_at(pocket4, [
    (-16.75, 37.75, -33.9),
    (-23.25, 37.75, -33.9),
    (-27.6, 39.5, -33.9),
    (-27.6, 39.5, 3.6),
    (-12.4, 39.5, -33.9),
    (-12.4, 39.5, 3.6),
]))
fillet2.setExpression("Radius", "Params.fillet2_radius")
doc.recompute()

fillet3 = body8.newObject("PartDesign::Fillet", "Fillet002")
fillet3.Base = (fillet2, edges_at(fillet2, [
    (41.25, 37.75, -33.9),
    (34.75, 37.75, -33.9),
    (30.4, 39.5, -33.9),
    (30.4, 39.5, 3.6),
    (45.6, 39.5, -33.9),
    (45.6, 39.5, 3.6),
]))
fillet3.setExpression("Radius", "Params.fillet3_radius")

doc.recompute()
